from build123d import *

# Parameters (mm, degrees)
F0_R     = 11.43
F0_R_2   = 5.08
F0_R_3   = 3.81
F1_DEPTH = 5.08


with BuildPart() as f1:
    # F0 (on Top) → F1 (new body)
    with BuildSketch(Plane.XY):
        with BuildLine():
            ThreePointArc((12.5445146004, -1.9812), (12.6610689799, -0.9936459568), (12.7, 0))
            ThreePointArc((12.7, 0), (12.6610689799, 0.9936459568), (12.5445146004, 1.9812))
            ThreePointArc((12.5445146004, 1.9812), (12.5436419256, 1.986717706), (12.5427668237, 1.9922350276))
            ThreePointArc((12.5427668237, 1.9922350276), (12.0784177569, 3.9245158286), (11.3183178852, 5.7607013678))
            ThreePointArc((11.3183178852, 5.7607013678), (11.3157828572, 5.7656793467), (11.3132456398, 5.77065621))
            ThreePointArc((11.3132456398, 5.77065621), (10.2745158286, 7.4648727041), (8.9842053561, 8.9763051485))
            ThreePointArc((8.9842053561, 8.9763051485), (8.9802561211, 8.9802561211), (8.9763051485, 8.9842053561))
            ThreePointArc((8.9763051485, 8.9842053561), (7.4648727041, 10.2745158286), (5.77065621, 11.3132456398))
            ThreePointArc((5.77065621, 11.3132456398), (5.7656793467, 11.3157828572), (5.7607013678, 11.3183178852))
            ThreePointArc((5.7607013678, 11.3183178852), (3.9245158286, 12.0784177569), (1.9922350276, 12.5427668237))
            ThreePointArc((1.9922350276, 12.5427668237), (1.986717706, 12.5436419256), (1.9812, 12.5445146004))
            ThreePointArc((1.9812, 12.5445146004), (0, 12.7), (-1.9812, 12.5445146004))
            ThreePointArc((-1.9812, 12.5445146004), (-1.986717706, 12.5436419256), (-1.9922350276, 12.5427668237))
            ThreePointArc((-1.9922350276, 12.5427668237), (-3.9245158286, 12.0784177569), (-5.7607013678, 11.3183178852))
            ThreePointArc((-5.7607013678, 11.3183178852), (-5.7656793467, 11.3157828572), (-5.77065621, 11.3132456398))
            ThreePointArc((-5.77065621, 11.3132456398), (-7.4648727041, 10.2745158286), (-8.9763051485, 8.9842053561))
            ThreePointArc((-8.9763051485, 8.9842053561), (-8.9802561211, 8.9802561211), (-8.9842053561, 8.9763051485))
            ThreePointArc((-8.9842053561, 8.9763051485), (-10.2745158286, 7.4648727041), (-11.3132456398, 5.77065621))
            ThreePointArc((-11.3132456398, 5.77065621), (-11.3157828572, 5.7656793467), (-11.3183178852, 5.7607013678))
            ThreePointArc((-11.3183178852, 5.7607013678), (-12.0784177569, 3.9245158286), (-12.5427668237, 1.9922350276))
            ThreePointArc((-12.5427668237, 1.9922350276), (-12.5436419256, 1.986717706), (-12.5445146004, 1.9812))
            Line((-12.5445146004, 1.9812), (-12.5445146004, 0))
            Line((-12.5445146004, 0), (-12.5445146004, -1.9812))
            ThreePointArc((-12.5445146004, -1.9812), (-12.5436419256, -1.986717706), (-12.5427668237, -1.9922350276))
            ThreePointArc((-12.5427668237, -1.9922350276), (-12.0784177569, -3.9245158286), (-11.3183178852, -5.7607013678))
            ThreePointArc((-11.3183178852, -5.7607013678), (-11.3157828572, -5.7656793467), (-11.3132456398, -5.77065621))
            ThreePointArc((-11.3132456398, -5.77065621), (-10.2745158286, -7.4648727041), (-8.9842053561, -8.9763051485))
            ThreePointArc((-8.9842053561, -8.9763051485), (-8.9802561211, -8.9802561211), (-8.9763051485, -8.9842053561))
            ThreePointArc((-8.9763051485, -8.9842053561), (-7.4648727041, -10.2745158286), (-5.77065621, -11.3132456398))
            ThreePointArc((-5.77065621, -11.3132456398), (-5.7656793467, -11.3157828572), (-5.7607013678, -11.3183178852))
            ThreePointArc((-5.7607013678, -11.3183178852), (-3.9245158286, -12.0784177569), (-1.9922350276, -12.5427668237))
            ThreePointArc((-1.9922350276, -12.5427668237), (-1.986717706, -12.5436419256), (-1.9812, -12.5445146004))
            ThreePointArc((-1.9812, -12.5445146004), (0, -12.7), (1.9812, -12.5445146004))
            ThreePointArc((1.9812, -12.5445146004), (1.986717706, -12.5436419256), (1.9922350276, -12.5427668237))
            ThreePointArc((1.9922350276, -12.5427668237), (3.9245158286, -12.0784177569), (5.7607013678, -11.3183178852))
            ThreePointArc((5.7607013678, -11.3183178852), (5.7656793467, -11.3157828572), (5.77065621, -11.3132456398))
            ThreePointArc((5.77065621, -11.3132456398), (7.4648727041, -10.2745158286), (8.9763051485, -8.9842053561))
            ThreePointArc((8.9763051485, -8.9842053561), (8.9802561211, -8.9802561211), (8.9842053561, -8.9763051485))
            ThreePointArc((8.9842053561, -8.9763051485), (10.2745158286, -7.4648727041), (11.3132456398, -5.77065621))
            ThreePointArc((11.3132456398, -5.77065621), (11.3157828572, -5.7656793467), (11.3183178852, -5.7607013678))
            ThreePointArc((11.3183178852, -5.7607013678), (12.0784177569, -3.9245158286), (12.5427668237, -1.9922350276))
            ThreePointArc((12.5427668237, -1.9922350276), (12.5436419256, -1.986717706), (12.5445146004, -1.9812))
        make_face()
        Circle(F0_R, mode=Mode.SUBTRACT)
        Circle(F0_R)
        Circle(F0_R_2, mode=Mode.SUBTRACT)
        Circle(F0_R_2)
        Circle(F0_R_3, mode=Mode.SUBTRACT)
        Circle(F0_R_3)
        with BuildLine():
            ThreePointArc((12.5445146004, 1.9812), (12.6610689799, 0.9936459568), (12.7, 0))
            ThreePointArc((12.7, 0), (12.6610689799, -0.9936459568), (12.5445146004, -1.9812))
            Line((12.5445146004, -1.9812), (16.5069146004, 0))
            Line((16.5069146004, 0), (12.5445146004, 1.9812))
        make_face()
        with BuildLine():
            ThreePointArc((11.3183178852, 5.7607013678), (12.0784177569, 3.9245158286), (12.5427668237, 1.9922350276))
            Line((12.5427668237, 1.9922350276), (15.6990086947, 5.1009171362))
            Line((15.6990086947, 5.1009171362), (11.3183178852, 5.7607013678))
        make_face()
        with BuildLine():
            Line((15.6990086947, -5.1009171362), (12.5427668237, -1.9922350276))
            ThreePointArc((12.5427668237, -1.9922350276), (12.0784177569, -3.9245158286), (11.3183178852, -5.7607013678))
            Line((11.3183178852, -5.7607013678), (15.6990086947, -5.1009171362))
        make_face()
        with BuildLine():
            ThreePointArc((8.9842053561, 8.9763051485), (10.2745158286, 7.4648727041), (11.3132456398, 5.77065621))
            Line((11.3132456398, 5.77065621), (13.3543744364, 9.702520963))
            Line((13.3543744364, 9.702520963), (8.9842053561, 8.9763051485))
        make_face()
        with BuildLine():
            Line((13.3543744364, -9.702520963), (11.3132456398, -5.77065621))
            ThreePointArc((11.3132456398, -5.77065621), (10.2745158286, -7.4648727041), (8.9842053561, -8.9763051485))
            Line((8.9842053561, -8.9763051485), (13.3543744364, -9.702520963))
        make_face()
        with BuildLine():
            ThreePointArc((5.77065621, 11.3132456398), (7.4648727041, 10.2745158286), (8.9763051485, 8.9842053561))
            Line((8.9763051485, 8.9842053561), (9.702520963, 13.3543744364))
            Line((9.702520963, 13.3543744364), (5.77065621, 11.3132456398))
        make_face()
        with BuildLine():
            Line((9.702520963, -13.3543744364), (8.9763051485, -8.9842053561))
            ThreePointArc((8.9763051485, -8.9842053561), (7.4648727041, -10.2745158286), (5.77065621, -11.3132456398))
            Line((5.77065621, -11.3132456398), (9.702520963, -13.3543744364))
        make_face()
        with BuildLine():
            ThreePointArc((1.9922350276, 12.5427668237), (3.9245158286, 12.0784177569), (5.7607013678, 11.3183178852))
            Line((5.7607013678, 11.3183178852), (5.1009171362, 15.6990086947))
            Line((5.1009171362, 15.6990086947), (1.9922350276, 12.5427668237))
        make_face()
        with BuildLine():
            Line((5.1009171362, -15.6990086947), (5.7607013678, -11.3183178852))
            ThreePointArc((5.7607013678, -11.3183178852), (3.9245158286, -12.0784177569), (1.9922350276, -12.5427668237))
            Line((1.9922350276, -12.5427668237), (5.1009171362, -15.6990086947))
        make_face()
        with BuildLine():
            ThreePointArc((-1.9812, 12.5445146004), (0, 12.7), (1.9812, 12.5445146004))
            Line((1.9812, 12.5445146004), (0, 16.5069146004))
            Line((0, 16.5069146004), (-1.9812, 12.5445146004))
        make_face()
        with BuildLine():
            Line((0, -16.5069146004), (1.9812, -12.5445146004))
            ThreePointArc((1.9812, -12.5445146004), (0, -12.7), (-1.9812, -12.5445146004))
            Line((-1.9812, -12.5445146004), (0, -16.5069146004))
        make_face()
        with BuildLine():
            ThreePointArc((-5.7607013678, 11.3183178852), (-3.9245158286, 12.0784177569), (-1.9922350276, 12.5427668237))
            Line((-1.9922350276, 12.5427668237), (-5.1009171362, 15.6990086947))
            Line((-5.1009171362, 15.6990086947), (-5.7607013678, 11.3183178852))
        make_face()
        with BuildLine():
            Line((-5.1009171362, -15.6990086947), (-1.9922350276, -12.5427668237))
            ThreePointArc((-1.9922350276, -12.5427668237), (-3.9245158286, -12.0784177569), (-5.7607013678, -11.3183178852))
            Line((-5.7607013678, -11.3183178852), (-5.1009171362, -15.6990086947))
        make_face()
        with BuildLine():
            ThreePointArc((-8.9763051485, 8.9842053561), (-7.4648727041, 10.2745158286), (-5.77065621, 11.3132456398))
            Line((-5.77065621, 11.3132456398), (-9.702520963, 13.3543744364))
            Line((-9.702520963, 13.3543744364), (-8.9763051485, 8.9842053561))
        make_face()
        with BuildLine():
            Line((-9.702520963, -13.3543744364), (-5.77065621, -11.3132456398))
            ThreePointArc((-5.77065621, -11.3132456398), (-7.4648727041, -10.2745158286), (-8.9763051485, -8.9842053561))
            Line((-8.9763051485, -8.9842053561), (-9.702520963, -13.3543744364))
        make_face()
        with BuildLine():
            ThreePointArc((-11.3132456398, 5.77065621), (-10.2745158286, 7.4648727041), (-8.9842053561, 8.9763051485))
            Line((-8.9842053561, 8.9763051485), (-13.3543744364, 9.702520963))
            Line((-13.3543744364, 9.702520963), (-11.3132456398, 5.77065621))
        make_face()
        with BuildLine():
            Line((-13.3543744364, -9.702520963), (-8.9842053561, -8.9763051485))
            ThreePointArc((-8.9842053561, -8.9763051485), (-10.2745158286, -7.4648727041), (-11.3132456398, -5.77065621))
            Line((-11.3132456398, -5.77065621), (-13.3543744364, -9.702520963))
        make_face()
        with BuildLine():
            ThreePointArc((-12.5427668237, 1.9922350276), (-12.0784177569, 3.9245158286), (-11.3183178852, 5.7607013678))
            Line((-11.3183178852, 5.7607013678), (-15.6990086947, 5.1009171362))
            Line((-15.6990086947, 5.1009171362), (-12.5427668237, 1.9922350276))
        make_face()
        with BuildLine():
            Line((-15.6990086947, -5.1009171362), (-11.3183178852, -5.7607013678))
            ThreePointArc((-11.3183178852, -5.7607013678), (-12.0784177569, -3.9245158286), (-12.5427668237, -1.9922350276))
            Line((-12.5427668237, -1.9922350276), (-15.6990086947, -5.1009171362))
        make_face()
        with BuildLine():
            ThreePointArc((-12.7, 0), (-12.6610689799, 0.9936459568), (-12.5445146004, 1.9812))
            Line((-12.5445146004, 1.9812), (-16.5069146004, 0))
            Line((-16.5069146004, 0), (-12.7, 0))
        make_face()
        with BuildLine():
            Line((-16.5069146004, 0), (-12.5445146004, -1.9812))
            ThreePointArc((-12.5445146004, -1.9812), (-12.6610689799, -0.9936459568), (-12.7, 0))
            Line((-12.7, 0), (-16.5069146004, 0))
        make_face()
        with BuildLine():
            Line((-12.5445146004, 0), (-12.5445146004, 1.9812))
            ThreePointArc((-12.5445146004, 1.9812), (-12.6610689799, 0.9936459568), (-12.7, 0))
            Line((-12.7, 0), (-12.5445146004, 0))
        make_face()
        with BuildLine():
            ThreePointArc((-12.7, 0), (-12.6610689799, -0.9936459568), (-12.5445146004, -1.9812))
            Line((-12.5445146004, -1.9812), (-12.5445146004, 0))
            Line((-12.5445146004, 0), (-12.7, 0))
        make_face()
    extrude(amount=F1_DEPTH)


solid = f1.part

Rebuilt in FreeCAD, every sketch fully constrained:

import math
import FreeCAD as App
import Part
import Sketcher
from FreeCAD import Vector
Q = App.Units.Quantity

doc = App.newDocument("Part")
body = doc.addObject("PartDesign::Body", "Body")

# Sketch on XY plane
sketch1 = body.newObject("Sketcher::SketchObject", "Sketch")
sketch1.AttachmentSupport = (doc.getObject("XY_Plane"), [""])
sketch1.MapMode = "FlatFace"
sketch1.addGeometry(Part.LineSegment(Vector(-16.506915, 0, 0), Vector(-12.544515, -1.9812, 0)), False)
sketch1.addGeometry(Part.ArcOfCircle(Part.Circle(Vector(-0.000694, -0.00011, 0), Vector(0, 0, 1), 12.699297), math.radians(-171.025204), math.radians(-170.974796)), False)
sketch1.addGeometry(Part.LineSegment(Vector(-12.542767, -1.992235, 0), Vector(-15.699009, -5.100917, 0)), False)
sketch1.addGeometry(Part.LineSegment(Vector(-15.699009, -5.100917, 0), Vector(-11.318318, -5.760701, 0)), False)
sketch1.addGeometry(Part.ArcOfCircle(Part.Circle(Vector(-0.000118, -0.00006, 0), Vector(0, 0, 1), 12.699867), math.radians(-153.025203), math.radians(-152.974798)), False)
sketch1.addGeometry(Part.LineSegment(Vector(-11.313246, -5.770656, 0), Vector(-13.354374, -9.702521, 0)), False)
sketch1.addGeometry(Part.LineSegment(Vector(-13.354374, -9.702521, 0), Vector(-8.984205, -8.976305, 0)), False)
sketch1.addGeometry(Part.ArcOfCircle(Part.Circle(Vector(-0.000444, -0.000444, 0), Vector(0, 0, 1), 12.699371), math.radians(-135.025204), math.radians(-134.974796)), False)
sketch1.addGeometry(Part.LineSegment(Vector(-8.976305, -8.984205, 0), Vector(-9.702521, -13.354374, 0)), False)
sketch1.addGeometry(Part.LineSegment(Vector(-9.702521, -13.354374, 0), Vector(-5.770656, -11.313246, 0)), False)
sketch1.addGeometry(Part.ArcOfCircle(Part.Circle(Vector(-0.00006, -0.000118, 0), Vector(0, 0, 1), 12.699867), math.radians(-117.025202), math.radians(-116.974797)), False)
sketch1.addGeometry(Part.LineSegment(Vector(-5.760701, -11.318318, 0), Vector(-5.100917, -15.699009, 0)), False)
sketch1.addGeometry(Part.LineSegment(Vector(-5.100917, -15.699009, 0), Vector(-1.992235, -12.542767, 0)), False)
sketch1.addGeometry(Part.ArcOfCircle(Part.Circle(Vector(-0.00011, -0.000694, 0), Vector(0, 0, 1), 12.699297), math.radians(-99.025204), math.radians(-98.974796)), False)
sketch1.addGeometry(Part.LineSegment(Vector(-1.9812, -12.544515, 0), Vector(0, -16.506915, 0)), False)
sketch1.addGeometry(Part.LineSegment(Vector(0, -16.506915, 0), Vector(1.9812, -12.544515, 0)), False)
sketch1.addGeometry(Part.ArcOfCircle(Part.Circle(Vector(0.00011, -0.000694, 0), Vector(0, 0, 1), 12.699297), math.radians(-81.025204), math.radians(-80.974796)), False)
sketch1.addGeometry(Part.LineSegment(Vector(1.992235, -12.542767, 0), Vector(5.100917, -15.699009, 0)), False)
sketch1.addGeometry(Part.LineSegment(Vector(5.100917, -15.699009, 0), Vector(5.760701, -11.318318, 0)), False)
sketch1.addGeometry(Part.ArcOfCircle(Part.Circle(Vector(0.00006, -0.000118, 0), Vector(0, 0, 1), 12.699867), math.radians(-63.025203), math.radians(-62.974798)), False)
sketch1.addGeometry(Part.LineSegment(Vector(5.770656, -11.313246, 0), Vector(9.702521, -13.354374, 0)), False)
sketch1.addGeometry(Part.LineSegment(Vector(9.702521, -13.354374, 0), Vector(8.976305, -8.984205, 0)), False)
sketch1.addGeometry(Part.ArcOfCircle(Part.Circle(Vector(0.000444, -0.000444, 0), Vector(0, 0, 1), 12.699371), math.radians(-45.025204), math.radians(-44.974796)), False)
sketch1.addGeometry(Part.LineSegment(Vector(8.984205, -8.976305, 0), Vector(13.354374, -9.702521, 0)), False)
sketch1.addGeometry(Part.LineSegment(Vector(13.354374, -9.702521, 0), Vector(11.313246, -5.770656, 0)), False)
sketch1.addGeometry(Part.ArcOfCircle(Part.Circle(Vector(0.000118, -0.00006, 0), Vector(0, 0, 1), 12.699867), math.radians(-27.025202), math.radians(-26.974797)), False)
sketch1.addGeometry(Part.LineSegment(Vector(11.318318, -5.760701, 0), Vector(15.699009, -5.100917, 0)), False)
sketch1.addGeometry(Part.LineSegment(Vector(15.699009, -5.100917, 0), Vector(12.542767, -1.992235, 0)), False)
sketch1.addGeometry(Part.ArcOfCircle(Part.Circle(Vector(0.000694, -0.00011, 0), Vector(0, 0, 1), 12.699297), math.radians(-9.025204), math.radians(-8.974796)), False)
sketch1.addGeometry(Part.LineSegment(Vector(12.544515, -1.9812, 0), Vector(16.506915, 0, 0)), False)
sketch1.addGeometry(Part.LineSegment(Vector(16.506915, 0, 0), Vector(12.544515, 1.9812, 0)), False)
sketch1.addGeometry(Part.ArcOfCircle(Part.Circle(Vector(0.000694, 0.00011, 0), Vector(0, 0, 1), 12.699297), math.radians(8.974796), math.radians(9.025204)), False)
sketch1.addGeometry(Part.LineSegment(Vector(12.542767, 1.992235, 0), Vector(15.699009, 5.100917, 0)), False)
sketch1.addGeometry(Part.LineSegment(Vector(15.699009, 5.100917, 0), Vector(11.318318, 5.760701, 0)), False)
sketch1.addGeometry(Part.ArcOfCircle(Part.Circle(Vector(0.000118, 0.00006, 0), Vector(0, 0, 1), 12.699867), math.radians(26.974797), math.radians(27.025202)), False)
sketch1.addGeometry(Part.LineSegment(Vector(11.313246, 5.770656, 0), Vector(13.354374, 9.702521, 0)), False)
sketch1.addGeometry(Part.LineSegment(Vector(13.354374, 9.702521, 0), Vector(8.984205, 8.976305, 0)), False)
sketch1.addGeometry(Part.ArcOfCircle(Part.Circle(Vector(0.000444, 0.000444, 0), Vector(0, 0, 1), 12.699371), math.radians(44.974796), math.radians(45.025204)), False)
sketch1.addGeometry(Part.LineSegment(Vector(8.976305, 8.984205, 0), Vector(9.702521, 13.354374, 0)), False)
sketch1.addGeometry(Part.LineSegment(Vector(9.702521, 13.354374, 0), Vector(5.770656, 11.313246, 0)), False)
sketch1.addGeometry(Part.ArcOfCircle(Part.Circle(Vector(0.00006, 0.000118, 0), Vector(0, 0, 1), 12.699867), math.radians(62.974798), math.radians(63.025203)), False)
sketch1.addGeometry(Part.LineSegment(Vector(5.760701, 11.318318, 0), Vector(5.100917, 15.699009, 0)), False)
sketch1.addGeometry(Part.LineSegment(Vector(5.100917, 15.699009, 0), Vector(1.992235, 12.542767, 0)), False)
sketch1.addGeometry(Part.ArcOfCircle(Part.Circle(Vector(0.00011, 0.000694, 0), Vector(0, 0, 1), 12.699297), math.radians(80.974796), math.radians(81.025204)), False)
sketch1.addGeometry(Part.LineSegment(Vector(1.9812, 12.544515, 0), Vector(0, 16.506915, 0)), False)
sketch1.addGeometry(Part.LineSegment(Vector(0, 16.506915, 0), Vector(-1.9812, 12.544515, 0)), False)
sketch1.addGeometry(Part.ArcOfCircle(Part.Circle(Vector(-0.00011, 0.000694, 0), Vector(0, 0, 1), 12.699297), math.radians(98.974796), math.radians(99.025204)), False)
sketch1.addGeometry(Part.LineSegment(Vector(-1.992235, 12.542767, 0), Vector(-5.100917, 15.699009, 0)), False)
sketch1.addGeometry(Part.LineSegment(Vector(-5.100917, 15.699009, 0), Vector(-5.760701, 11.318318, 0)), False)
sketch1.addGeometry(Part.ArcOfCircle(Part.Circle(Vector(-0.00006, 0.000118, 0), Vector(0, 0, 1), 12.699867), math.radians(116.974797), math.radians(117.025202)), False)
sketch1.addGeometry(Part.LineSegment(Vector(-5.770656, 11.313246, 0), Vector(-9.702521, 13.354374, 0)), False)
sketch1.addGeometry(Part.LineSegment(Vector(-9.702521, 13.354374, 0), Vector(-8.976305, 8.984205, 0)), False)
sketch1.addGeometry(Part.ArcOfCircle(Part.Circle(Vector(-0.000444, 0.000444, 0), Vector(0, 0, 1), 12.699371), math.radians(134.974796), math.radians(135.025204)), False)
sketch1.addGeometry(Part.LineSegment(Vector(-8.984205, 8.976305, 0), Vector(-13.354374, 9.702521, 0)), False)
sketch1.addGeometry(Part.LineSegment(Vector(-13.354374, 9.702521, 0), Vector(-11.313246, 5.770656, 0)), False)
sketch1.addGeometry(Part.ArcOfCircle(Part.Circle(Vector(-0.000118, 0.00006, 0), Vector(0, 0, 1), 12.699867), math.radians(152.974798), math.radians(153.025203)), False)
sketch1.addGeometry(Part.LineSegment(Vector(-11.318318, 5.760701, 0), Vector(-15.699009, 5.100917, 0)), False)
sketch1.addGeometry(Part.LineSegment(Vector(-15.699009, 5.100917, 0), Vector(-12.542767, 1.992235, 0)), False)
sketch1.addGeometry(Part.ArcOfCircle(Part.Circle(Vector(-0.000694, 0.00011, 0), Vector(0, 0, 1), 12.699297), math.radians(170.974796), math.radians(171.025204)), False)
sketch1.addGeometry(Part.LineSegment(Vector(-12.544515, 1.9812, 0), Vector(-16.506915, 0, 0)), False)
sketch1.addConstraint(Sketcher.Constraint("Coincident", 0, 2, 1, 1))
sketch1.addConstraint(Sketcher.Constraint("Coincident", 1, 2, 2, 1))
sketch1.addConstraint(Sketcher.Constraint("Coincident", 2, 2, 3, 1))
sketch1.addConstraint(Sketcher.Constraint("Coincident", 3, 2, 4, 1))
sketch1.addConstraint(Sketcher.Constraint("Coincident", 4, 2, 5, 1))
sketch1.addConstraint(Sketcher.Constraint("Coincident", 5, 2, 6, 1))
sketch1.addConstraint(Sketcher.Constraint("Coincident", 6, 2, 7, 1))
sketch1.addConstraint(Sketcher.Constraint("Coincident", 7, 2, 8, 1))
sketch1.addConstraint(Sketcher.Constraint("Coincident", 8, 2, 9, 1))
sketch1.addConstraint(Sketcher.Constraint("Coincident", 9, 2, 10, 1))
sketch1.addConstraint(Sketcher.Constraint("Coincident", 10, 2, 11, 1))
sketch1.addConstraint(Sketcher.Constraint("Coincident", 11, 2, 12, 1))
sketch1.addConstraint(Sketcher.Constraint("Coincident", 12, 2, 13, 1))
sketch1.addConstraint(Sketcher.Constraint("Coincident", 13, 2, 14, 1))
sketch1.addConstraint(Sketcher.Constraint("Coincident", 14, 2, 15, 1))
sketch1.addConstraint(Sketcher.Constraint("Coincident", 15, 2, 16, 1))
sketch1.addConstraint(Sketcher.Constraint("Coincident", 16, 2, 17, 1))
sketch1.addConstraint(Sketcher.Constraint("Coincident", 17, 2, 18, 1))
sketch1.addConstraint(Sketcher.Constraint("Coincident", 18, 2, 19, 1))
sketch1.addConstraint(Sketcher.Constraint("Coincident", 19, 2, 20, 1))
sketch1.addConstraint(Sketcher.Constraint("Coincident", 20, 2, 21, 1))
sketch1.addConstraint(Sketcher.Constraint("Coincident", 21, 2, 22, 1))
sketch1.addConstraint(Sketcher.Constraint("Coincident", 22, 2, 23, 1))
sketch1.addConstraint(Sketcher.Constraint("Coincident", 23, 2, 24, 1))
sketch1.addConstraint(Sketcher.Constraint("Coincident", 24, 2, 25, 1))
sketch1.addConstraint(Sketcher.Constraint("Coincident", 25, 2, 26, 1))
sketch1.addConstraint(Sketcher.Constraint("Coincident", 26, 2, 27, 1))
sketch1.addConstraint(Sketcher.Constraint("Coincident", 27, 2, 28, 1))
sketch1.addConstraint(Sketcher.Constraint("Coincident", 28, 2, 29, 1))
sketch1.addConstraint(Sketcher.Constraint("Coincident", 29, 2, 30, 1))
sketch1.addConstraint(Sketcher.Constraint("Coincident", 30, 2, 31, 1))
sketch1.addConstraint(Sketcher.Constraint("Coincident", 31, 2, 32, 1))
sketch1.addConstraint(Sketcher.Constraint("Coincident", 32, 2, 33, 1))
sketch1.addConstraint(Sketcher.Constraint("Coincident", 33, 2, 34, 1))
sketch1.addConstraint(Sketcher.Constraint("Coincident", 34, 2, 35, 1))
sketch1.addConstraint(Sketcher.Constraint("Coincident", 35, 2, 36, 1))
sketch1.addConstraint(Sketcher.Constraint("Coincident", 36, 2, 37, 1))
sketch1.addConstraint(Sketcher.Constraint("Coincident", 37, 2, 38, 1))
sketch1.addConstraint(Sketcher.Constraint("Coincident", 38, 2, 39, 1))
sketch1.addConstraint(Sketcher.Constraint("Coincident", 39, 2, 40, 1))
sketch1.addConstraint(Sketcher.Constraint("Coincident", 40, 2, 41, 1))
sketch1.addConstraint(Sketcher.Constraint("Coincident", 41, 2, 42, 1))
sketch1.addConstraint(Sketcher.Constraint("Coincident", 42, 2, 43, 1))
sketch1.addConstraint(Sketcher.Constraint("Coincident", 43, 2, 44, 1))
sketch1.addConstraint(Sketcher.Constraint("Coincident", 44, 2, 45, 1))
sketch1.addConstraint(Sketcher.Constraint("Coincident", 45, 2, 46, 1))
sketch1.addConstraint(Sketcher.Constraint("Coincident", 46, 2, 47, 1))
sketch1.addConstraint(Sketcher.Constraint("Coincident", 47, 2, 48, 1))
sketch1.addConstraint(Sketcher.Constraint("Coincident", 48, 2, 49, 1))
sketch1.addConstraint(Sketcher.Constraint("Coincident", 49, 2, 50, 1))
sketch1.addConstraint(Sketcher.Constraint("Coincident", 50, 2, 51, 1))
sketch1.addConstraint(Sketcher.Constraint("Coincident", 51, 2, 52, 1))
sketch1.addConstraint(Sketcher.Constraint("Coincident", 52, 2, 53, 1))
sketch1.addConstraint(Sketcher.Constraint("Coincident", 53, 2, 54, 1))
sketch1.addConstraint(Sketcher.Constraint("Coincident", 54, 2, 55, 1))
sketch1.addConstraint(Sketcher.Constraint("Coincident", 55, 2, 56, 1))
sketch1.addConstraint(Sketcher.Constraint("Coincident", 56, 2, 57, 1))
sketch1.addConstraint(Sketcher.Constraint("Coincident", 57, 2, 58, 1))
sketch1.addConstraint(Sketcher.Constraint("Coincident", 58, 2, 59, 1))
sketch1.addConstraint(Sketcher.Constraint("Coincident", 59, 2, 0, 1))
sketch1.addConstraint(Sketcher.Constraint("Equal", 4, 10))
sketch1.addConstraint(Sketcher.Constraint("Equal", 1, 13))
sketch1.addConstraint(Sketcher.Constraint("Equal", 13, 16))
sketch1.addConstraint(Sketcher.Constraint("Equal", 10, 19))
sketch1.addConstraint(Sketcher.Constraint("Equal", 7, 22))
sketch1.addConstraint(Sketcher.Constraint("Equal", 19, 25))
sketch1.addConstraint(Sketcher.Constraint("Equal", 16, 28))
sketch1.addConstraint(Sketcher.Constraint("Equal", 28, 31))
sketch1.addConstraint(Sketcher.Constraint("Equal", 25, 34))
sketch1.addConstraint(Sketcher.Constraint("Equal", 22, 37))
sketch1.addConstraint(Sketcher.Constraint("Equal", 34, 40))
sketch1.addConstraint(Sketcher.Constraint("Equal", 31, 43))
sketch1.addConstraint(Sketcher.Constraint("Equal", 43, 46))
sketch1.addConstraint(Sketcher.Constraint("Equal", 40, 49))
sketch1.addConstraint(Sketcher.Constraint("Equal", 37, 52))
sketch1.addConstraint(Sketcher.Constraint("Equal", 49, 55))
sketch1.addConstraint(Sketcher.Constraint("Equal", 46, 58))
sketch1.addConstraint(Sketcher.Constraint("Symmetric", 1, 3, 31, 3, -1, 1))
sketch1.addConstraint(Sketcher.Constraint("Symmetric", 4, 3, 34, 3, -1, 1))
sketch1.addConstraint(Sketcher.Constraint("Symmetric", 7, 3, 37, 3, -1, 1))
sketch1.addConstraint(Sketcher.Constraint("Symmetric", 10, 3, 40, 3, -1, 1))
sketch1.addConstraint(Sketcher.Constraint("Symmetric", 13, 3, 43, 3, -1, 1))
sketch1.addConstraint(Sketcher.Constraint("Symmetric", 16, 3, 46, 3, -1, 1))
sketch1.addConstraint(Sketcher.Constraint("Symmetric", 19, 3, 49, 3, -1, 1))
sketch1.addConstraint(Sketcher.Constraint("Symmetric", 22, 3, 52, 3, -1, 1))
sketch1.addConstraint(Sketcher.Constraint("Symmetric", 25, 3, 55, 3, -1, 1))
sketch1.addConstraint(Sketcher.Constraint("Symmetric", 28, 3, 58, 3, -1, 1))
sketch1.addConstraint(Sketcher.Constraint("Symmetric", 2, 2, 32, 2, -1, 1))
sketch1.addConstraint(Sketcher.Constraint("Symmetric", 5, 2, 35, 2, -1, 1))
sketch1.addConstraint(Sketcher.Constraint("Symmetric", 8, 2, 38, 2, -1, 1))
sketch1.addConstraint(Sketcher.Constraint("Symmetric", 11, 2, 41, 2, -1, 1))
sketch1.addConstraint(Sketcher.Constraint("Symmetric", 14, 2, 44, 2, -1, 1))
sketch1.addConstraint(Sketcher.Constraint("Symmetric", 17, 2, 47, 2, -1, 1))
sketch1.addConstraint(Sketcher.Constraint("Symmetric", 20, 2, 50, 2, -1, 1))
sketch1.addConstraint(Sketcher.Constraint("Symmetric", 23, 2, 53, 2, -1, 1))
sketch1.addConstraint(Sketcher.Constraint("Symmetric", 26, 2, 56, 2, -1, 1))
sketch1.addConstraint(Sketcher.Constraint("Symmetric", 29, 2, 59, 2, -1, 1))
sketch1.addConstraint(Sketcher.Constraint("Symmetric", 13, 3, 16, 3, -2))
sketch1.addConstraint(Sketcher.Constraint("Symmetric", 10, 3, 19, 3, -2))
sketch1.addConstraint(Sketcher.Constraint("Symmetric", 7, 3, 22, 3, -2))
sketch1.addConstraint(Sketcher.Constraint("Symmetric", 4, 3, 25, 3, -2))
sketch1.addConstraint(Sketcher.Constraint("Symmetric", 1, 3, 28, 3, -2))
sketch1.addConstraint(Sketcher.Constraint("Symmetric", 11, 2, 17, 2, -2))
sketch1.addConstraint(Sketcher.Constraint("Symmetric", 8, 2, 20, 2, -2))
sketch1.addConstraint(Sketcher.Constraint("Symmetric", 5, 2, 23, 2, -2))
sketch1.addConstraint(Sketcher.Constraint("Symmetric", 2, 2, 26, 2, -2))
sketch1.addConstraint(Sketcher.Constraint("PointOnObject", 14, 2, -2))
sketch1.addConstraint(Sketcher.Constraint("PointOnObject", 29, 2, -1))
sketch1.addConstraint(Sketcher.Constraint("Perpendicular", 0, 15))
sketch1.addConstraint(Sketcher.Constraint("Perpendicular", 2, 17))
sketch1.addConstraint(Sketcher.Constraint("Perpendicular", 3, 18))
sketch1.addConstraint(Sketcher.Constraint("Perpendicular", 5, 20))
sketch1.addConstraint(Sketcher.Constraint("Perpendicular", 6, 21))
sketch1.addConstraint(Sketcher.Constraint("Perpendicular", 8, 23))
sketch1.addConstraint(Sketcher.Constraint("Perpendicular", 9, 24))
sketch1.addConstraint(Sketcher.Constraint("Perpendicular", 11, 26))
sketch1.addConstraint(Sketcher.Constraint("Perpendicular", 12, 27))
sketch1.addConstraint(Sketcher.Constraint("Perpendicular", 14, 29))
sketch1.addConstraint(Sketcher.Constraint("Perpendicular", 15, 30))
sketch1.addConstraint(Sketcher.Constraint("Perpendicular", 17, 32))
sketch1.addConstraint(Sketcher.Constraint("Perpendicular", 18, 33))
sketch1.addConstraint(Sketcher.Constraint("Perpendicular", 20, 35))
sketch1.addConstraint(Sketcher.Constraint("Perpendicular", 21, 36))
sketch1.addConstraint(Sketcher.Constraint("Perpendicular", 23, 38))
sketch1.addConstraint(Sketcher.Constraint("Perpendicular", 24, 39))
sketch1.addConstraint(Sketcher.Constraint("Perpendicular", 26, 41))
sketch1.addConstraint(Sketcher.Constraint("Perpendicular", 27, 42))
sketch1.addConstraint(Sketcher.Constraint("Perpendicular", 29, 44))
sketch1.addConstraint(Sketcher.Constraint("Perpendicular", 30, 45))
sketch1.addConstraint(Sketcher.Constraint("Perpendicular", 32, 47))
sketch1.addConstraint(Sketcher.Constraint("Perpendicular", 33, 48))
sketch1.addConstraint(Sketcher.Constraint("Perpendicular", 35, 50))
sketch1.addConstraint(Sketcher.Constraint("Perpendicular", 36, 51))
sketch1.addConstraint(Sketcher.Constraint("Perpendicular", 38, 53))
sketch1.addConstraint(Sketcher.Constraint("Perpendicular", 39, 54))
sketch1.addConstraint(Sketcher.Constraint("Perpendicular", 41, 56))
sketch1.addConstraint(Sketcher.Constraint("Perpendicular", 42, 57))
sketch1.addConstraint(Sketcher.Constraint("Perpendicular", 44, 59))
sketch1.addConstraint(Sketcher.Constraint("Horizontal", 13, 2, 15, 2))
sketch1.addConstraint(Sketcher.Constraint("Horizontal", 12, 2, 16, 2))
sketch1.addConstraint(Sketcher.Constraint("Horizontal", 10, 2, 18, 2))
sketch1.addConstraint(Sketcher.Constraint("Horizontal", 9, 2, 19, 2))
sketch1.addConstraint(Sketcher.Constraint("Horizontal", 7, 2, 21, 2))
sketch1.addConstraint(Sketcher.Constraint("Equal", 0, 2))
sketch1.addConstraint(Sketcher.Constraint("Equal", 2, 3))
sketch1.addConstraint(Sketcher.Constraint("Equal", 3, 5))
sketch1.addConstraint(Sketcher.Constraint("Equal", 5, 6))
sketch1.addConstraint(Sketcher.Constraint("Equal", 6, 8))
sketch1.addConstraint(Sketcher.Constraint("Equal", 8, 9))
sketch1.addConstraint(Sketcher.Constraint("Equal", 9, 11))
sketch1.addConstraint(Sketcher.Constraint("Equal", 11, 12))
sketch1.addConstraint(Sketcher.Constraint("Equal", 12, 14))
sketch1.addConstraint(Sketcher.Constraint("DistanceY", 0, 2, -1, 1, Q("0.078 in")))
sketch1.addConstraint(Sketcher.Constraint("Radius", 7, 12.699371))
sketch1.addConstraint(Sketcher.Constraint("Radius", 1, 12.699297))
sketch1.addConstraint(Sketcher.Constraint("Radius", 4, 12.699867))
sketch1.addConstraint(Sketcher.Constraint("DistanceY", 3, 2, -1, 1, 5.760701))
sketch1.addConstraint(Sketcher.Constraint("DistanceX", 10, 2, -1, 1, 5.760701))
sketch1.addConstraint(Sketcher.Constraint("DistanceY", 1, 3, -1, 1, 0.00011))
sketch1.addConstraint(Sketcher.Constraint("DistanceX", 4, 3, -1, 1, 0.000118))
sketch1.addConstraint(Sketcher.Constraint("DistanceY", 10, 3, -1, 1, 0.000118))
sketch1.addConstraint(Sketcher.Constraint("DistanceX", 13, 3, -1, 1, 0.00011))
sketch1.addConstraint(Sketcher.Constraint("DistanceX", 2, 2, -1, 1, 15.699009))
sketch1.addConstraint(Sketcher.Constraint("DistanceY", 5, 2, -1, 1, 9.702521))
sketch1.addConstraint(Sketcher.Constraint("DistanceX", 8, 2, -1, 1, 9.702521))
sketch1.addConstraint(Sketcher.Constraint("Distance", 0, 4.430098))
sketch1.addConstraint(Sketcher.Constraint("DistanceX", 1, 3, -1, 1, 0.000694))
sketch1.addConstraint(Sketcher.Constraint("DistanceX", 7, 3, -1, 1, 0.000444))
sketch1.addConstraint(Sketcher.Constraint("DistanceY", 7, 3, -1, 1, 0.000444))
sketch1.addConstraint(Sketcher.Constraint("DistanceX", 1, 2, -1, 1, 12.542767))
sketch1.addConstraint(Sketcher.Constraint("DistanceX", 4, 2, -1, 1, 11.313246))
pad1 = body.newObject("PartDesign::Pad", "Pad")
pad1.Profile = sketch1
pad1.Length = Q("0.2 in")

doc.recompute()
